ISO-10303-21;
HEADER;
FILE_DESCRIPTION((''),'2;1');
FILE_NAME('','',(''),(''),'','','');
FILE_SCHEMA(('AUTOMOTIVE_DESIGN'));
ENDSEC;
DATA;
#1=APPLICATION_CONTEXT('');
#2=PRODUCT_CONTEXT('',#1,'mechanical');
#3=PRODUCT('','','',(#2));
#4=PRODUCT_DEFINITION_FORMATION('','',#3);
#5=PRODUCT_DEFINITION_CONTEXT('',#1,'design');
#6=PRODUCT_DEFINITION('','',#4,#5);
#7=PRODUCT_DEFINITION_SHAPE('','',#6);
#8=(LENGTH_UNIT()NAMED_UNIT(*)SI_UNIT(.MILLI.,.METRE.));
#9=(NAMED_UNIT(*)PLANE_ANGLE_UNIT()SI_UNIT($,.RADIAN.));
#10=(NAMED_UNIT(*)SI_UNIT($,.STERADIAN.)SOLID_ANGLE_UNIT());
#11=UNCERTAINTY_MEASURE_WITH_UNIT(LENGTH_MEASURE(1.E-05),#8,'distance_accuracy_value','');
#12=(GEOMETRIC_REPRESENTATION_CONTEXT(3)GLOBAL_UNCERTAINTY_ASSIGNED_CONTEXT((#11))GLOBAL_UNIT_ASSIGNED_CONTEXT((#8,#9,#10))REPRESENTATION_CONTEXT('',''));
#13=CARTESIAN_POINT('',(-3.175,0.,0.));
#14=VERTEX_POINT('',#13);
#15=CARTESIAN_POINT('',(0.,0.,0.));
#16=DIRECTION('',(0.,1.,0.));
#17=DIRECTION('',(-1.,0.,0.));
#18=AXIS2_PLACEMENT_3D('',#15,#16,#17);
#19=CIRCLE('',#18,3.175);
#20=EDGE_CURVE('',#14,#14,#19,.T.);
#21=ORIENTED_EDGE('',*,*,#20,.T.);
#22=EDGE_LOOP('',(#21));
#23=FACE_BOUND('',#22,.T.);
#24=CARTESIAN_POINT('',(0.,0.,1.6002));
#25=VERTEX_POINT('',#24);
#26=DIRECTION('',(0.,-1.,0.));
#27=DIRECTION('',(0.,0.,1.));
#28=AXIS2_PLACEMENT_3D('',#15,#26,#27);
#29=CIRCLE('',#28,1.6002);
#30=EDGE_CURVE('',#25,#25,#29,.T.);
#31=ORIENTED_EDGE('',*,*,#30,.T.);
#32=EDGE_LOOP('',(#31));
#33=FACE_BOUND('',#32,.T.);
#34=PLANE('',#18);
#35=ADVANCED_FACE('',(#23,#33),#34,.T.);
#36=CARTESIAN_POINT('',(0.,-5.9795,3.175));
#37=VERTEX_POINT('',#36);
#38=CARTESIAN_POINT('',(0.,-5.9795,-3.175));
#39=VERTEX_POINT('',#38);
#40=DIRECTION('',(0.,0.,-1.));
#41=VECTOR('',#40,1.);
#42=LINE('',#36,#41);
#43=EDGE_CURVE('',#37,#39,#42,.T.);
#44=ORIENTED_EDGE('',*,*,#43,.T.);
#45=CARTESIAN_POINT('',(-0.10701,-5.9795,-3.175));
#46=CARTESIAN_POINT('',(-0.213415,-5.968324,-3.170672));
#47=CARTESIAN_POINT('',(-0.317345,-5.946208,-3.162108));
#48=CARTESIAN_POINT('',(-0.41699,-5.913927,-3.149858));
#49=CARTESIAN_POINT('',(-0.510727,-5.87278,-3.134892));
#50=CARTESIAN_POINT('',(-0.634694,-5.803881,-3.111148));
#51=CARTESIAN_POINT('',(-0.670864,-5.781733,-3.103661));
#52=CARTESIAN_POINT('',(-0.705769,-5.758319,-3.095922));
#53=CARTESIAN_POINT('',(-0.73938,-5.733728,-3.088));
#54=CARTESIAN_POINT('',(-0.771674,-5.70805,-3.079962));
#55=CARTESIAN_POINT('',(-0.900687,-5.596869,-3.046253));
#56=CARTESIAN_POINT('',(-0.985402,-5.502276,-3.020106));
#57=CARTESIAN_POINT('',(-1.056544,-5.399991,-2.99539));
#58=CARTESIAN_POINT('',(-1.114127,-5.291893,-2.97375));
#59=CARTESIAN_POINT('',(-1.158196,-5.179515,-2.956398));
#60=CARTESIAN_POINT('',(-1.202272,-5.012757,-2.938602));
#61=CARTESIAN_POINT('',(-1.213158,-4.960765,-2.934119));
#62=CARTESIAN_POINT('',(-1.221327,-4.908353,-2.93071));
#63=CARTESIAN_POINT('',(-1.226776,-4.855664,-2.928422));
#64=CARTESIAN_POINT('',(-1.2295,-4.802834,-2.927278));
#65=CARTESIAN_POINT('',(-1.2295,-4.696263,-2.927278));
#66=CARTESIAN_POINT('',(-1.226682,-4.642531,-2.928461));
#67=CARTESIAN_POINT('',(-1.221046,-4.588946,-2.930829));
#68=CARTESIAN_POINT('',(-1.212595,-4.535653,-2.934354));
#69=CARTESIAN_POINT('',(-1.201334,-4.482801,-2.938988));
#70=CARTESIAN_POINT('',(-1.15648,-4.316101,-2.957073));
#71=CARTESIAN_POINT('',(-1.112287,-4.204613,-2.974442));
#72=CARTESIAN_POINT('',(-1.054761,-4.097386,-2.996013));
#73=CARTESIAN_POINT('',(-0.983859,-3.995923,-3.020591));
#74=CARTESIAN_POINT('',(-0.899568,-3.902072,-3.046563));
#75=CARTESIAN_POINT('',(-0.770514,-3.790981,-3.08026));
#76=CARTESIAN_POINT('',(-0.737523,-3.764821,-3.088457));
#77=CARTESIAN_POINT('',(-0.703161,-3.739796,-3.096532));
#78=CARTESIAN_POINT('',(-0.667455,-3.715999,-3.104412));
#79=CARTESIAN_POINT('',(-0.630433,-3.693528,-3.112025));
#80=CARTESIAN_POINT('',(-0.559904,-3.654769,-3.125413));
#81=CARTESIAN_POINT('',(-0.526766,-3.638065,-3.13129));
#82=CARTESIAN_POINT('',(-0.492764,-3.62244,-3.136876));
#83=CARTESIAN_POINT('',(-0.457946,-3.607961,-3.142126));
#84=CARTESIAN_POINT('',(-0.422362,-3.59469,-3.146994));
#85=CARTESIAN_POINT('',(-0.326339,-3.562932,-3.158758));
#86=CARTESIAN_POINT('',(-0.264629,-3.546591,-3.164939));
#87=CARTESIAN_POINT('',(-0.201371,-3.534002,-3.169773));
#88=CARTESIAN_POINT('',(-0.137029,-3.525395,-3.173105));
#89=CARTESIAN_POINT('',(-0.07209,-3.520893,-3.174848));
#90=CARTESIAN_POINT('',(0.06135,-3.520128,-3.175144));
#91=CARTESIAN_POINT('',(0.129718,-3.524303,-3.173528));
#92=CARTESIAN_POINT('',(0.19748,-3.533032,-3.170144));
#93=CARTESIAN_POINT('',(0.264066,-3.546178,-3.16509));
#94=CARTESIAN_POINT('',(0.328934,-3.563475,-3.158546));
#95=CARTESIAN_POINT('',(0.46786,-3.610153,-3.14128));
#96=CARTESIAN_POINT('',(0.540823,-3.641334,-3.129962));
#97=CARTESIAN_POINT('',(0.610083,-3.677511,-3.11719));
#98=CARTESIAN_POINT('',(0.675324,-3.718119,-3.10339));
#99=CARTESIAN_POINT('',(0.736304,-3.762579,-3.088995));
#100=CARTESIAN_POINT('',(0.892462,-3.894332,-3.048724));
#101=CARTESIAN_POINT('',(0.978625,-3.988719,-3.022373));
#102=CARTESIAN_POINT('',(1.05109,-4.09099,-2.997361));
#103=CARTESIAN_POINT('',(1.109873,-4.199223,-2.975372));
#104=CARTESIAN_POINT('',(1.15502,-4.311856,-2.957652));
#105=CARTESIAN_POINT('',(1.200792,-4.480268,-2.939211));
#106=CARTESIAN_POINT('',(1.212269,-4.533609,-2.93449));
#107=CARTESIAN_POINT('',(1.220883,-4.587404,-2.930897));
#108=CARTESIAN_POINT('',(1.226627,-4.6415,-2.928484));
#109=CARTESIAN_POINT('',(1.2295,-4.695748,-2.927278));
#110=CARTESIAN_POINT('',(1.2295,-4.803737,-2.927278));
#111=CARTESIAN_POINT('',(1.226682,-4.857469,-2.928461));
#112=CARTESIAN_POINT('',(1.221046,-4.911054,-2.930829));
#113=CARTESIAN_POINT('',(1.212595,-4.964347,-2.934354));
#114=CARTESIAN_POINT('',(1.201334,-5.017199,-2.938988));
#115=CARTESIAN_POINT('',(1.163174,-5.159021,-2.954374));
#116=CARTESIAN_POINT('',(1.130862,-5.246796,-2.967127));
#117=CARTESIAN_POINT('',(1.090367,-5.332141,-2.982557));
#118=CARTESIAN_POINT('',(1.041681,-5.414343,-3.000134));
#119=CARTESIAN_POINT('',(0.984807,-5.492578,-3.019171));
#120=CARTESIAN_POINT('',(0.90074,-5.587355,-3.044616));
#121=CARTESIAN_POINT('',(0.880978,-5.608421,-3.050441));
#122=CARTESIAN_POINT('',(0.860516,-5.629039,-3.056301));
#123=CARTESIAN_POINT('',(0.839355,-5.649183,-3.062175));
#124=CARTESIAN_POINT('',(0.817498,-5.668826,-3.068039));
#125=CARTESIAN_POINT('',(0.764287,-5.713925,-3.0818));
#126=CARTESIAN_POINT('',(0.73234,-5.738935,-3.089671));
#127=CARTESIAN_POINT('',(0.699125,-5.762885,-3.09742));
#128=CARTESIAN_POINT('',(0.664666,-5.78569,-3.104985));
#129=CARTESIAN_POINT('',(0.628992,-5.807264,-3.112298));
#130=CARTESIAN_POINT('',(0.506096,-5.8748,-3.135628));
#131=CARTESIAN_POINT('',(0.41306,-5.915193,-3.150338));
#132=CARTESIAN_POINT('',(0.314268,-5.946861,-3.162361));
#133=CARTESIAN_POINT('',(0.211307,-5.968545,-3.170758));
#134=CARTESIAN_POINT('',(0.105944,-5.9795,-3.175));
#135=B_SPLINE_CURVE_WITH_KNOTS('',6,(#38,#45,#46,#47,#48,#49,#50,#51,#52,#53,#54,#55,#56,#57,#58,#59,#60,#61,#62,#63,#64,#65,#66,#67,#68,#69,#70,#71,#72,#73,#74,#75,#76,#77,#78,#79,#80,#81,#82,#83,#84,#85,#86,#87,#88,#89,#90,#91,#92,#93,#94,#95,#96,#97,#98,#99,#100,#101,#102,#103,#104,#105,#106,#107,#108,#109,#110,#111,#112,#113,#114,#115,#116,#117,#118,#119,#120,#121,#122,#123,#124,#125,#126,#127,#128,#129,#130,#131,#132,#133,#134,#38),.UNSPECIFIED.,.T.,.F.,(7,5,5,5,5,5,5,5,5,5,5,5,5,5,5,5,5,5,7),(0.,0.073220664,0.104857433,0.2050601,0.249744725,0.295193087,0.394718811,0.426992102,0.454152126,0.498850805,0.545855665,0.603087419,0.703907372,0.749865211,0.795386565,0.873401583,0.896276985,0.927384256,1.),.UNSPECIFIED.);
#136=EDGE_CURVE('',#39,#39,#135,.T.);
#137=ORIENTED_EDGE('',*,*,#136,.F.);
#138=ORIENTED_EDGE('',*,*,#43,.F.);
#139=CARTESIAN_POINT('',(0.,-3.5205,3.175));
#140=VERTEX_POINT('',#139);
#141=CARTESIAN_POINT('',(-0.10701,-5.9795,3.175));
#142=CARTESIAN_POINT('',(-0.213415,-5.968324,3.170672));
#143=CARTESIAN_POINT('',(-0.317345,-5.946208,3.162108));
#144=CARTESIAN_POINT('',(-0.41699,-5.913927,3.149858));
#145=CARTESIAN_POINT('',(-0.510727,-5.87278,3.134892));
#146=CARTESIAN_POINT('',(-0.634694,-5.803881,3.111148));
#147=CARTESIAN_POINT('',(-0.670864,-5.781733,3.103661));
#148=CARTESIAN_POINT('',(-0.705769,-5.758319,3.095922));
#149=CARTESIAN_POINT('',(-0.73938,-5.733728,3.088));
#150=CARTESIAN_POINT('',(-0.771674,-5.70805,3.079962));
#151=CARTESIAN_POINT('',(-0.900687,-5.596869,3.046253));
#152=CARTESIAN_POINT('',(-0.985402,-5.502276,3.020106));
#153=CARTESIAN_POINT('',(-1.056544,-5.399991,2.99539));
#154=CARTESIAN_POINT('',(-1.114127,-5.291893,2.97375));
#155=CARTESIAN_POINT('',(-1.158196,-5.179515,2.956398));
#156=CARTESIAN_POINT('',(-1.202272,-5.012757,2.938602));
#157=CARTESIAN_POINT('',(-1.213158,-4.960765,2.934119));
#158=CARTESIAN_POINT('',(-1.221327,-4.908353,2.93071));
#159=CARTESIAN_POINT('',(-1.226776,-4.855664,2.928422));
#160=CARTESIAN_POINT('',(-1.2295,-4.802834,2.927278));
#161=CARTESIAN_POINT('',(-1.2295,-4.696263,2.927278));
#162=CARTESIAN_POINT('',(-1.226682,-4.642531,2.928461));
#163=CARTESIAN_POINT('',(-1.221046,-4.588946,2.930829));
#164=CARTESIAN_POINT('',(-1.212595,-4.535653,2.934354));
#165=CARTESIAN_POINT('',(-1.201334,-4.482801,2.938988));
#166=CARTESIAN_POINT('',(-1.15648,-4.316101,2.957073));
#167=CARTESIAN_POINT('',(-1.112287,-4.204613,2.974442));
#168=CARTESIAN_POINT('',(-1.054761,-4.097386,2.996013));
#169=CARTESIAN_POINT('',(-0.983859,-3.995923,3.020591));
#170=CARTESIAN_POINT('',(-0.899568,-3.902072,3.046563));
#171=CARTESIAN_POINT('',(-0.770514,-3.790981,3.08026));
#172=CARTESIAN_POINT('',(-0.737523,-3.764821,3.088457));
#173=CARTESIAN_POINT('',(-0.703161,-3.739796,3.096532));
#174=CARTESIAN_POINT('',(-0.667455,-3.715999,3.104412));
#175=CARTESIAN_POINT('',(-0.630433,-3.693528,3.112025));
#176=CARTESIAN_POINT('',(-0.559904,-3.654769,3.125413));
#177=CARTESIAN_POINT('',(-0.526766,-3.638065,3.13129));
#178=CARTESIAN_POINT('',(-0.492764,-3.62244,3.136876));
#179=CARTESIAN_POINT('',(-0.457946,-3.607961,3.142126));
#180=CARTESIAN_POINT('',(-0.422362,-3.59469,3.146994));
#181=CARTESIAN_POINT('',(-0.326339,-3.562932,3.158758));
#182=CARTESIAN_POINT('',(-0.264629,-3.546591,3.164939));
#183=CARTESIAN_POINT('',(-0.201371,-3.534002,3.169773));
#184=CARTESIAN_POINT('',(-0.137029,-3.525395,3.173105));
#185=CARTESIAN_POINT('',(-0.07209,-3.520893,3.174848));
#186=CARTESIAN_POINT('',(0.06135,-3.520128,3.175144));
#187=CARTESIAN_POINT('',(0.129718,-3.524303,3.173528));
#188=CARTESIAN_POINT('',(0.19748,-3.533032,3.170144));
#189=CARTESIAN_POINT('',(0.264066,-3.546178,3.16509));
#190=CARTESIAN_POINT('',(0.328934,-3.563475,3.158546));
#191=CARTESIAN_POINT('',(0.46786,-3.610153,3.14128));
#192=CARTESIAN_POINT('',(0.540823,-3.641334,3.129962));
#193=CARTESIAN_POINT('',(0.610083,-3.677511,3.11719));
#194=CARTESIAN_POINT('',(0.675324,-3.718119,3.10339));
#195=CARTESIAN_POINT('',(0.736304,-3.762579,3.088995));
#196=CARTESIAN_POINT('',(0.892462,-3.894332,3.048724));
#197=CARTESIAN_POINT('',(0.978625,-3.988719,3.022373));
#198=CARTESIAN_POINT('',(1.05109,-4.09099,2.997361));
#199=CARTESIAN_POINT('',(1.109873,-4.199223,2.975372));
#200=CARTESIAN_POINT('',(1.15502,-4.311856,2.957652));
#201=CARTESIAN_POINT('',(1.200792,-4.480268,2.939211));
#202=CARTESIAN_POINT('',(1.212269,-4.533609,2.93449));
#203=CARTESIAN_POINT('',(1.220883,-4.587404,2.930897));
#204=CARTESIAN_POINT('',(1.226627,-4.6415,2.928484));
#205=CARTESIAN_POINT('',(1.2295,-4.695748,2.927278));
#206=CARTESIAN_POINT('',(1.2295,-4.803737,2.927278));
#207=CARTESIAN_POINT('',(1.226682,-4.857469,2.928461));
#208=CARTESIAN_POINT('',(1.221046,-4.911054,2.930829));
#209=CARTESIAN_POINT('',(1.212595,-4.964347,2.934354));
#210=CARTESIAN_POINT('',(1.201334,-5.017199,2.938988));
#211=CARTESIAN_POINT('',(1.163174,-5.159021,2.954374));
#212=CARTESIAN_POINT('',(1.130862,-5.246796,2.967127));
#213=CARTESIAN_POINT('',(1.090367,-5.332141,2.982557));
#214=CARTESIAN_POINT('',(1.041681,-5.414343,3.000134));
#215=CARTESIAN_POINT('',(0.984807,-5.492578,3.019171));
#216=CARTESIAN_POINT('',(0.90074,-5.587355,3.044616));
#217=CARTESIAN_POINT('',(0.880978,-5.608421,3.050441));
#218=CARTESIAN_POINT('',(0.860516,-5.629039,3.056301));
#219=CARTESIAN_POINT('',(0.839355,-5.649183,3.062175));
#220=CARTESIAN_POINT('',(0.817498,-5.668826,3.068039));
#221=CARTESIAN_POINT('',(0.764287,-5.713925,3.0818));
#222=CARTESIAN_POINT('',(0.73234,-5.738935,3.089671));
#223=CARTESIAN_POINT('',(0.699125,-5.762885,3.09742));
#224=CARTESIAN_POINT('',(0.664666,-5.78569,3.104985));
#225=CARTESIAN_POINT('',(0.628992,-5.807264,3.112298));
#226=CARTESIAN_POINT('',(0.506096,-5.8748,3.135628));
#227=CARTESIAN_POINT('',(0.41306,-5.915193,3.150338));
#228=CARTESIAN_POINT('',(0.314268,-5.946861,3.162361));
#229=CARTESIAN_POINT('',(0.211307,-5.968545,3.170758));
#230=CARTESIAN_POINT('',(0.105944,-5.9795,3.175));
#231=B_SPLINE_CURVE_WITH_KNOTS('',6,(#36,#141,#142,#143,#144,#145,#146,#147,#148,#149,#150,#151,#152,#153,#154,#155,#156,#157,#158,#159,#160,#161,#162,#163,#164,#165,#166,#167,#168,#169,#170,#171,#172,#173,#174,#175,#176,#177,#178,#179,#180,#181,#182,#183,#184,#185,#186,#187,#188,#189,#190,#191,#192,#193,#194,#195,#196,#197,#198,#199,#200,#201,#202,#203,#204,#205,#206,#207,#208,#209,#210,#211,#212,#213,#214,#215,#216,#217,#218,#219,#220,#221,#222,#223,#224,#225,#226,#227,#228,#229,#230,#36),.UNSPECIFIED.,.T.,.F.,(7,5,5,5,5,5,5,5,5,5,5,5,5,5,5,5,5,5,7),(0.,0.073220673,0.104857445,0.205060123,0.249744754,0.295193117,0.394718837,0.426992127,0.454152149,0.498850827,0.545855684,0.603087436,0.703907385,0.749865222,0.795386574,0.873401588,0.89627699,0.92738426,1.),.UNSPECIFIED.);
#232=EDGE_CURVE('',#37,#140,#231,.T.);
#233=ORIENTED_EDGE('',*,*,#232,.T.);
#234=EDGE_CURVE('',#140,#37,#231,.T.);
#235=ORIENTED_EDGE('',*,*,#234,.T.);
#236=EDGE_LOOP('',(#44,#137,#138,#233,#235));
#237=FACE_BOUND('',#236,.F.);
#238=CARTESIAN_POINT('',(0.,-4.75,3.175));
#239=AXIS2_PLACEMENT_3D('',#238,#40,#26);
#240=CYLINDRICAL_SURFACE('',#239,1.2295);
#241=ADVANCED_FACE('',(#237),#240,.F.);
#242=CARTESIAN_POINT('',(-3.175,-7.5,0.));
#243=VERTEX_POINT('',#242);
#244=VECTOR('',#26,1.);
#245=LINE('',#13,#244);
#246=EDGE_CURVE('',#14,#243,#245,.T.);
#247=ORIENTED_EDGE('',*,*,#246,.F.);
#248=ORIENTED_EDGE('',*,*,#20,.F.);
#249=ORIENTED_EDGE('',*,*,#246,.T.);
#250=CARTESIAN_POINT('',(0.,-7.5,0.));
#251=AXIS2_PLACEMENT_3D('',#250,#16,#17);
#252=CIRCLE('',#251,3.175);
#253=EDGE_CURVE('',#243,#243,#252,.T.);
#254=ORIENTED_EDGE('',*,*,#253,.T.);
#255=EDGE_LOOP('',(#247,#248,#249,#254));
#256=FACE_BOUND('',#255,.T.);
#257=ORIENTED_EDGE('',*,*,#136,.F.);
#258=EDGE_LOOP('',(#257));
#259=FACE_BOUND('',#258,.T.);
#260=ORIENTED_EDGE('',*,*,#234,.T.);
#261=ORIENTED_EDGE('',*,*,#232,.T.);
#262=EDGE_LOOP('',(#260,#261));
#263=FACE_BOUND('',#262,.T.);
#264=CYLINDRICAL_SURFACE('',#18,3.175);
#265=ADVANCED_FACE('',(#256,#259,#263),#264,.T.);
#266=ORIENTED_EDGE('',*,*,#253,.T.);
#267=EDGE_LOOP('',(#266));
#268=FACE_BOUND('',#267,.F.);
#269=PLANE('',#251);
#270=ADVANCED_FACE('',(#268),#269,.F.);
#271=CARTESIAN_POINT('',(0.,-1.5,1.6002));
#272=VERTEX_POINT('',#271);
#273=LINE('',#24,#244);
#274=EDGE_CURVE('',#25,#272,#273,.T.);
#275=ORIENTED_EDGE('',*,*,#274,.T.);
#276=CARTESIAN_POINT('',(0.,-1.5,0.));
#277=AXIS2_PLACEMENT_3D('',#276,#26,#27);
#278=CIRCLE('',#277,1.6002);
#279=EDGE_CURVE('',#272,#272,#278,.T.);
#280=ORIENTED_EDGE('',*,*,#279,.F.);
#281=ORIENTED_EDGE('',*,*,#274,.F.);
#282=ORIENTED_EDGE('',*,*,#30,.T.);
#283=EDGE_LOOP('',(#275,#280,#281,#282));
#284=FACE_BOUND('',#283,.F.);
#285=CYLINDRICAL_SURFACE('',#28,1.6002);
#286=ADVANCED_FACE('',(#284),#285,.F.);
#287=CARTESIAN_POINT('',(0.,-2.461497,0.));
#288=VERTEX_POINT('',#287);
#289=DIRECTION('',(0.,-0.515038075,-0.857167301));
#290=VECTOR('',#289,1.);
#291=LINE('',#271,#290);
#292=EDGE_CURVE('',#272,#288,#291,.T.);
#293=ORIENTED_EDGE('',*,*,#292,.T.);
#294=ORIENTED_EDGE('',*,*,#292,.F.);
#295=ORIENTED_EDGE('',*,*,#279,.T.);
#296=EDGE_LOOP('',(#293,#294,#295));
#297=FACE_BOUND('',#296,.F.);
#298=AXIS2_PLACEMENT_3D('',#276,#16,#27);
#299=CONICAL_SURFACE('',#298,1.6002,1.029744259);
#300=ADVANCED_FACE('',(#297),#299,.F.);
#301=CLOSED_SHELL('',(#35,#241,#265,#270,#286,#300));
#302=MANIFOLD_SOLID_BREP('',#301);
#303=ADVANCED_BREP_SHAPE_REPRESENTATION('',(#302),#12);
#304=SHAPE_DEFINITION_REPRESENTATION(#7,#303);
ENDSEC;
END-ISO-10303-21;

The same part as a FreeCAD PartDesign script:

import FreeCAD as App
import Part
import Sketcher
Q = App.Units.Quantity

doc = App.newDocument("Part")
params = doc.addObject("Spreadsheet::Sheet", "Params")
for row, (alias, value) in enumerate([
    ("sketch1_diameter", "6.35 mm"),
    ("pad1_length", "7.5 mm"),
    ("hole_diameter", "3.2004 mm"),
    ("hole_depth", "1.5 mm"),
    ("hole2_diameter", "2.459 mm"),
], start=1):
    params.set(f"A{row}", alias)
    params.set(f"B{row}", "=" + value)
    params.setAlias(f"B{row}", alias)

body = doc.addObject("PartDesign::Body", "Body")

# Sketch on XZ plane
sketch1 = body.newObject("Sketcher::SketchObject", "Sketch")
sketch1.AttachmentSupport = (doc.getObject("XZ_Plane"), [""])
sketch1.MapMode = "FlatFace"
sketch1.addGeometry(Part.Circle(App.Vector(0, 0, 0), App.Vector(0, 0, 1), 3.2), False)
sketch1.addConstraint([
    Sketcher.Constraint("Coincident", 0, 3, -1, 1),
    Sketcher.Constraint("Diameter", 0, Q("6.35 mm")),
])
sketch1.setExpression("Constraints[1]", "Params.sketch1_diameter")
pad1 = body.newObject("PartDesign::Pad", "Pad")
pad1.Profile = sketch1
pad1.setExpression("Length", "Params.pad1_length")

# Sketch on XZ plane
sketch2 = body.newObject("Sketcher::SketchObject", "Sketch001")
sketch2.AttachmentSupport = (doc.getObject("XZ_Plane"), [""])
sketch2.MapMode = "FlatFace"
sketch2.addGeometry(Part.Circle(App.Vector(0, 0, 0), App.Vector(0, 0, 1), 1.6), False)
sketch2.addConstraint([
    Sketcher.Constraint("Coincident", 0, 3, -1, 1),
    Sketcher.Constraint("Diameter", 0, Q("3.2004 mm")),
])
doc.recompute()
hole = body.newObject("PartDesign::Hole", "Hole")
hole.Profile = sketch2
hole.ThreadType = "None"
hole.setExpression("Diameter", "Params.hole_diameter")
hole.DepthType = "Dimension"
hole.setExpression("Depth", "Params.hole_depth")
hole.DrillPoint = "Angled"
hole.DrillPointAngle = 118
hole.Reversed = True

# Sketch on XY plane
sketch3 = body.newObject("Sketcher::SketchObject", "Sketch002")
sketch3.AttachmentSupport = (doc.getObject("XY_Plane"), [""])
sketch3.MapMode = "FlatFace"
sketch3.AttachmentOffset = App.Placement(App.Vector(0, 0, 3.175), App.Rotation())
sketch3.addGeometry(Part.Circle(App.Vector(0, -4.8, 0), App.Vector(0, 0, 1), 1.2), False)
sketch3.addConstraint([
    Sketcher.Constraint("PointOnObject", 0, 3, -2),
    Sketcher.Constraint("Diameter", 0, Q("2.459 mm")),
    Sketcher.Constraint("DistanceY", 0, 3, -1, 1, Q("4.75 mm")),
])
doc.recompute()
hole2 = body.newObject("PartDesign::Hole", "Hole001")
hole2.Profile = sketch3
hole2.ThreadType = "None"
hole2.setExpression("Diameter", "Params.hole2_diameter")
hole2.DepthType = "ThroughAll"

doc.recompute()
